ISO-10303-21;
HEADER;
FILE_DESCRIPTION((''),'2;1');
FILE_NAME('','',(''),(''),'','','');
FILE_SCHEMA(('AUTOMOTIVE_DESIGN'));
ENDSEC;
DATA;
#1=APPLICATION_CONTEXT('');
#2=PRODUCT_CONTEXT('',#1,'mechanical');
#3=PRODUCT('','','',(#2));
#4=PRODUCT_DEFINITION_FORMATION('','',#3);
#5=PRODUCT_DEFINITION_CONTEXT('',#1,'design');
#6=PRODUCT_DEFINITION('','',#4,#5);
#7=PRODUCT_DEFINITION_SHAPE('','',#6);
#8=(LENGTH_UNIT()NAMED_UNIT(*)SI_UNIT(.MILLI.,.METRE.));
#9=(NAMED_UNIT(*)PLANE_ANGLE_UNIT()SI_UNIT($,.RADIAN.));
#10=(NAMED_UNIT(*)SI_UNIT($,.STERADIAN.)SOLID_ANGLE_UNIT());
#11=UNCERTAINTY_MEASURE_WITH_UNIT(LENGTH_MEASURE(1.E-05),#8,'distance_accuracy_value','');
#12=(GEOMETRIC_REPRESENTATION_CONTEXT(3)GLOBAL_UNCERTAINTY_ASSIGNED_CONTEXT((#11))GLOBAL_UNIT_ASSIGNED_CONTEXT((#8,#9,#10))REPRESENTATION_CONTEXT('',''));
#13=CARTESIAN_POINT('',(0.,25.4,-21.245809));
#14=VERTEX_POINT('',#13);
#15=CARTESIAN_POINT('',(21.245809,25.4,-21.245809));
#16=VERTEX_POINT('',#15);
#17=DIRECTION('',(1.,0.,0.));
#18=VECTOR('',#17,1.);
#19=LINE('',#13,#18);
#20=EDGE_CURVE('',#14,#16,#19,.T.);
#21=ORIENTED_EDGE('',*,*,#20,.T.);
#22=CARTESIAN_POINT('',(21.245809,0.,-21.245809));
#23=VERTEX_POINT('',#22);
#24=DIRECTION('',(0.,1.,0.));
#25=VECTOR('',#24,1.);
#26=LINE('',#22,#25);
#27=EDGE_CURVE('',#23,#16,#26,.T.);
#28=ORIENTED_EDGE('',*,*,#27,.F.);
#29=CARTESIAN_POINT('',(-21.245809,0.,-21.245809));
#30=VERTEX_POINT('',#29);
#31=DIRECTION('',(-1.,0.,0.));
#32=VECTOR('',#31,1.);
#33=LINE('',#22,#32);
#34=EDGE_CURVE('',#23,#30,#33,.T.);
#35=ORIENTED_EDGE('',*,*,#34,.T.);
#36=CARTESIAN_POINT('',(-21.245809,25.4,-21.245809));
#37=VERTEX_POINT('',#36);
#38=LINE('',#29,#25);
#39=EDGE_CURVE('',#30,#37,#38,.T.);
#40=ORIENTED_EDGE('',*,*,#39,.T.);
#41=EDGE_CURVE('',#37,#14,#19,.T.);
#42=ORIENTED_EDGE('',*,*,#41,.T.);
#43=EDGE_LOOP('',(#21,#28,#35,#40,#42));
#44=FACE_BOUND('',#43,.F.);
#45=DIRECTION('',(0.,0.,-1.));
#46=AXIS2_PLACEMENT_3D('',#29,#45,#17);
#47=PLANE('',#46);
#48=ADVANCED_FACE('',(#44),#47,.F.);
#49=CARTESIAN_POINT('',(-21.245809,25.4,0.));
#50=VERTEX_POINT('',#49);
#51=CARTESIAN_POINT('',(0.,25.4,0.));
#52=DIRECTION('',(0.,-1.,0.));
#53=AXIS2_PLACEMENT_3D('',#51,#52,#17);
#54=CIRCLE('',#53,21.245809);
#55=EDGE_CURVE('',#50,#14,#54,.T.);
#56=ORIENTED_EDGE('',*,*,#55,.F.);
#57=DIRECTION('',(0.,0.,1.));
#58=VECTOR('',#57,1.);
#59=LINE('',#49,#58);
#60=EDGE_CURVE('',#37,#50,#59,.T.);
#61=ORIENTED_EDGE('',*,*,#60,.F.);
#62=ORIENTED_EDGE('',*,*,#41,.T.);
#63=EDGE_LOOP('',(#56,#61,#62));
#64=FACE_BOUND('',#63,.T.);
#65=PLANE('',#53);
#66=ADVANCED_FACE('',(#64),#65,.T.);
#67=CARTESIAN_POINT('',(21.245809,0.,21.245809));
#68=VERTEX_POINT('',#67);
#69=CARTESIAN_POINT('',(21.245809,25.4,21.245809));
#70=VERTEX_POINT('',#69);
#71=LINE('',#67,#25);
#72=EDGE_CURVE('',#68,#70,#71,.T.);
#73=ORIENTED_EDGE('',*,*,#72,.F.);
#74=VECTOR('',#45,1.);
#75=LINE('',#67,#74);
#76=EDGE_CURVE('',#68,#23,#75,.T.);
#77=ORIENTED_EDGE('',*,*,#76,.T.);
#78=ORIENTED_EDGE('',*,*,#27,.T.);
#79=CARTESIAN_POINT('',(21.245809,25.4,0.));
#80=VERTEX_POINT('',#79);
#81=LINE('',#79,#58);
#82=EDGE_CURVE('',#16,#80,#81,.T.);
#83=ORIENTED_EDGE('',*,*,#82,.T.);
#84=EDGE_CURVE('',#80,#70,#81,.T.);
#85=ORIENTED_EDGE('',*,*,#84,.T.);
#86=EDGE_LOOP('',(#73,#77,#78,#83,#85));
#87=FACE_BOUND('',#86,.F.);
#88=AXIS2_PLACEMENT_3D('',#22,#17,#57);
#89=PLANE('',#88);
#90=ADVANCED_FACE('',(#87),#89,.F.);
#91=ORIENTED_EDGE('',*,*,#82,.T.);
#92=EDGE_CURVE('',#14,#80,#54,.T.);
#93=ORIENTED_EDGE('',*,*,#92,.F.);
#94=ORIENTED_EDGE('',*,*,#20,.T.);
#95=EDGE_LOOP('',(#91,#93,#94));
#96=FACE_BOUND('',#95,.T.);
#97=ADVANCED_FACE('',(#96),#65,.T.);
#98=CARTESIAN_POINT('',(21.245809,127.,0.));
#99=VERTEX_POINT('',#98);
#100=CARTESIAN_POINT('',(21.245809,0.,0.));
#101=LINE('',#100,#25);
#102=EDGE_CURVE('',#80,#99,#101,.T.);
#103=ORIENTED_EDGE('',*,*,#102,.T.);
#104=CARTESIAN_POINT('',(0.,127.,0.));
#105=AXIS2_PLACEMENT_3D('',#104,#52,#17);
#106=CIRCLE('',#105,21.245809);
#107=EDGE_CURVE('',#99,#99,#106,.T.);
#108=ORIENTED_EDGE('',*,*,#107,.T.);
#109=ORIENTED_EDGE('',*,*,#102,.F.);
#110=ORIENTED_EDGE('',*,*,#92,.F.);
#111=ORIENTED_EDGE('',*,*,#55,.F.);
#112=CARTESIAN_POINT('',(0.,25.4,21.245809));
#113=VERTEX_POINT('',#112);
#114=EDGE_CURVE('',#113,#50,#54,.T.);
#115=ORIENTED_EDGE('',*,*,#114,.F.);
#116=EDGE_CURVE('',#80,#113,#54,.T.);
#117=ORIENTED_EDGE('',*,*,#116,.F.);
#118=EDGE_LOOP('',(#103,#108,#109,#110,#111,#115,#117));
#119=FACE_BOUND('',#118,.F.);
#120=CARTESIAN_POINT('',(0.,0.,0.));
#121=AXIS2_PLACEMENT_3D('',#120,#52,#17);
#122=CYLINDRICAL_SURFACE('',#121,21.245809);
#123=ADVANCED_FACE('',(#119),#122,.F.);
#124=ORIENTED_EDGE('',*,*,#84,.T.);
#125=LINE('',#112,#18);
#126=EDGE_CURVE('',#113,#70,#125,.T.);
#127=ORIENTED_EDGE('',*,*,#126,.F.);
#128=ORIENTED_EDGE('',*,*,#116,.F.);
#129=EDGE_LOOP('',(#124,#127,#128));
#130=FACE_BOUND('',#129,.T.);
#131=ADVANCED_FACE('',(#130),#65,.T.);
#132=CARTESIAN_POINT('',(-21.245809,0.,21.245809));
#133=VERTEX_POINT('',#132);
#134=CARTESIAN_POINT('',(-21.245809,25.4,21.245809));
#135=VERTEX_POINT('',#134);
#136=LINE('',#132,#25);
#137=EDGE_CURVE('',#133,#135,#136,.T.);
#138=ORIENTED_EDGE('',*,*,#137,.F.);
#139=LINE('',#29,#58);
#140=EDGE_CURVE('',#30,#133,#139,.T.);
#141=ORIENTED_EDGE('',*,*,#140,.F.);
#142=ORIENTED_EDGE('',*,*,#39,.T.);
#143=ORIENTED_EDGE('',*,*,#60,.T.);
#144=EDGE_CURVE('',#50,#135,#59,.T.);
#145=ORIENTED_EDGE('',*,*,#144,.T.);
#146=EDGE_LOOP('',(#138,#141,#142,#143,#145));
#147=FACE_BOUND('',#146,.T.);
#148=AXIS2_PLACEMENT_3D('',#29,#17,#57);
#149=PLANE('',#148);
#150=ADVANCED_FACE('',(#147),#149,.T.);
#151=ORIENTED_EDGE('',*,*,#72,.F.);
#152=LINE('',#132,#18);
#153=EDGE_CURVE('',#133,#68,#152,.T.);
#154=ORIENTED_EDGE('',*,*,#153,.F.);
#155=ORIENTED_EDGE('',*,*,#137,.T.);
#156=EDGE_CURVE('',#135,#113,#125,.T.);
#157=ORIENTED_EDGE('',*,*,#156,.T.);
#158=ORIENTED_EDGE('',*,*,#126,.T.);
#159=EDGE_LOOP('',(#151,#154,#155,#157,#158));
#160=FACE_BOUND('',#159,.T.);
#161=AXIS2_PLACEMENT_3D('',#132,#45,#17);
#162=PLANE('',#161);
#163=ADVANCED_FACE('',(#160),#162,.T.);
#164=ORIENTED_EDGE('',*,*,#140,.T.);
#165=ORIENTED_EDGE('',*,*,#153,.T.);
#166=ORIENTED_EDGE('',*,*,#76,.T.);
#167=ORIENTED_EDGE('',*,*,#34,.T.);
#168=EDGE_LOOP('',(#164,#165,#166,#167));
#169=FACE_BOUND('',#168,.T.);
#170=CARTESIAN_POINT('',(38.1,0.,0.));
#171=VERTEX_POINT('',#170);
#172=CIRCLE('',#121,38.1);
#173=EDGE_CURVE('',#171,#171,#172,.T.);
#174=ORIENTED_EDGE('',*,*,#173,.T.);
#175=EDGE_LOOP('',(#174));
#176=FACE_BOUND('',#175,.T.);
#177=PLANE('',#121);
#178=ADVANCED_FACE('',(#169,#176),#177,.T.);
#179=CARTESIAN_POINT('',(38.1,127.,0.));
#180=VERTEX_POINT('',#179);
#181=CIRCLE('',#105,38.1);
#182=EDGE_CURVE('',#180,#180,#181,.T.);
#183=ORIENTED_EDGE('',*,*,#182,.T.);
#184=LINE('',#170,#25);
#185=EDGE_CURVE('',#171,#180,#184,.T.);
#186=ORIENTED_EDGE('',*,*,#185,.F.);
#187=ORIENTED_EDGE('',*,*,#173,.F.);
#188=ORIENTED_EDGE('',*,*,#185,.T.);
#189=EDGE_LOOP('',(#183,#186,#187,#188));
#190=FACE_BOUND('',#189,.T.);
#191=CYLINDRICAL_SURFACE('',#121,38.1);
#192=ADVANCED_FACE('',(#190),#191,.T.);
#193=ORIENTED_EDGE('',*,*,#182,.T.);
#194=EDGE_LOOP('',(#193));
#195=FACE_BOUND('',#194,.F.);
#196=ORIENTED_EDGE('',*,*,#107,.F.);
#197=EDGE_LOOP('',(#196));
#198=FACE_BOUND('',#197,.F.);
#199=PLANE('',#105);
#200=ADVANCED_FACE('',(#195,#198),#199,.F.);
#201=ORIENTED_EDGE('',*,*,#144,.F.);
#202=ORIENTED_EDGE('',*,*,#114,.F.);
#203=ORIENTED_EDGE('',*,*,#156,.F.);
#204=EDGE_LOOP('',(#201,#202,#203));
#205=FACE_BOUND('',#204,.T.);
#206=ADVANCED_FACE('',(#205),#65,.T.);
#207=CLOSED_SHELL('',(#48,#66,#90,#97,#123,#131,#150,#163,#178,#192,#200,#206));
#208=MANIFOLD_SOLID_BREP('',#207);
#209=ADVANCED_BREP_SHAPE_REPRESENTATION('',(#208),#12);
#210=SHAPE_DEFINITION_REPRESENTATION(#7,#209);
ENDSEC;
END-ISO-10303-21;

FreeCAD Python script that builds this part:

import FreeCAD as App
import Part
import Sketcher

V = App.Vector
Q = App.Units.Quantity

doc = App.newDocument("Part")
body = doc.addObject("PartDesign::Body", "Body")

# Sketch on XZ plane
sketch1 = body.newObject("Sketcher::SketchObject", "Sketch")
sketch1.AttachmentSupport = (doc.getObject("XZ_Plane"), [""])
sketch1.MapMode = "FlatFace"
sketch1.addGeometry(Part.Circle(V(0, 0, 0), V(0, 0, 1), 38), False)
sketch1.addConstraint(Sketcher.Constraint("Coincident", 0, 3, -1, 1))
sketch1.addConstraint(Sketcher.Constraint("Diameter", 0, Q("3 in")))
pad1 = body.newObject("PartDesign::Pad", "Pad")
pad1.Profile = sketch1
pad1.Length = Q("5 in")
pad1.Reversed = True

# Sketch on XZ plane
sketch2 = body.newObject("Sketcher::SketchObject", "Sketch001")
sketch2.AttachmentSupport = (doc.getObject("XZ_Plane"), [""])
sketch2.MapMode = "FlatFace"
sketch2.addGeometry(Part.Circle(V(0, 0, 0), V(0, 0, 1), 21), False)
sketch2.addConstraint(Sketcher.Constraint("Coincident", 0, 3, -1, 1))
sketch2.addConstraint(Sketcher.Constraint("Diameter", 0, Q("42.491618 mm")))
pocket1 = body.newObject("PartDesign::Pocket", "Pocket")
pocket1.Profile = sketch2
pocket1.Type = "ThroughAll"

# Sketch on XZ plane
sketch3 = body.newObject("Sketcher::SketchObject", "Sketch002")
sketch3.AttachmentSupport = (doc.getObject("XZ_Plane"), [""])
sketch3.MapMode = "FlatFace"
sketch3.addGeometry(Part.LineSegment(V(-21, 21, 0), V(-21, -21, 0)), False)
sketch3.addGeometry(Part.LineSegment(V(-21, -21, 0), V(21, -21, 0)), False)
sketch3.addGeometry(Part.LineSegment(V(21, -21, 0), V(21, 21, 0)), False)
sketch3.addGeometry(Part.LineSegment(V(21, 21, 0), V(-21, 21, 0)), False)
sketch3.addConstraint(Sketcher.Constraint("Coincident", 0, 2, 1, 1))
sketch3.addConstraint(Sketcher.Constraint("Coincident", 1, 2, 2, 1))
sketch3.addConstraint(Sketcher.Constraint("Coincident", 2, 2, 3, 1))
sketch3.addConstraint(Sketcher.Constraint("Coincident", 3, 2, 0, 1))
sketch3.addConstraint(Sketcher.Constraint("Vertical", 0))
sketch3.addConstraint(Sketcher.Constraint("Horizontal", 1))
sketch3.addConstraint(Sketcher.Constraint("Vertical", 2))
sketch3.addConstraint(Sketcher.Constraint("Horizontal", 3))
sketch3.addConstraint(Sketcher.Constraint("Symmetric", 0, 2, 2, 2, -1, 1))
sketch3.addConstraint(Sketcher.Constraint("Equal", 3, 0))
sketch3.addConstraint(Sketcher.Constraint("DistanceX", 1, 1, 1, 2, Q("42.491618 mm")))
pocket2 = body.newObject("PartDesign::Pocket", "Pocket001")
pocket2.Profile = sketch3
pocket2.Length = Q("1 in")

doc.recompute()
